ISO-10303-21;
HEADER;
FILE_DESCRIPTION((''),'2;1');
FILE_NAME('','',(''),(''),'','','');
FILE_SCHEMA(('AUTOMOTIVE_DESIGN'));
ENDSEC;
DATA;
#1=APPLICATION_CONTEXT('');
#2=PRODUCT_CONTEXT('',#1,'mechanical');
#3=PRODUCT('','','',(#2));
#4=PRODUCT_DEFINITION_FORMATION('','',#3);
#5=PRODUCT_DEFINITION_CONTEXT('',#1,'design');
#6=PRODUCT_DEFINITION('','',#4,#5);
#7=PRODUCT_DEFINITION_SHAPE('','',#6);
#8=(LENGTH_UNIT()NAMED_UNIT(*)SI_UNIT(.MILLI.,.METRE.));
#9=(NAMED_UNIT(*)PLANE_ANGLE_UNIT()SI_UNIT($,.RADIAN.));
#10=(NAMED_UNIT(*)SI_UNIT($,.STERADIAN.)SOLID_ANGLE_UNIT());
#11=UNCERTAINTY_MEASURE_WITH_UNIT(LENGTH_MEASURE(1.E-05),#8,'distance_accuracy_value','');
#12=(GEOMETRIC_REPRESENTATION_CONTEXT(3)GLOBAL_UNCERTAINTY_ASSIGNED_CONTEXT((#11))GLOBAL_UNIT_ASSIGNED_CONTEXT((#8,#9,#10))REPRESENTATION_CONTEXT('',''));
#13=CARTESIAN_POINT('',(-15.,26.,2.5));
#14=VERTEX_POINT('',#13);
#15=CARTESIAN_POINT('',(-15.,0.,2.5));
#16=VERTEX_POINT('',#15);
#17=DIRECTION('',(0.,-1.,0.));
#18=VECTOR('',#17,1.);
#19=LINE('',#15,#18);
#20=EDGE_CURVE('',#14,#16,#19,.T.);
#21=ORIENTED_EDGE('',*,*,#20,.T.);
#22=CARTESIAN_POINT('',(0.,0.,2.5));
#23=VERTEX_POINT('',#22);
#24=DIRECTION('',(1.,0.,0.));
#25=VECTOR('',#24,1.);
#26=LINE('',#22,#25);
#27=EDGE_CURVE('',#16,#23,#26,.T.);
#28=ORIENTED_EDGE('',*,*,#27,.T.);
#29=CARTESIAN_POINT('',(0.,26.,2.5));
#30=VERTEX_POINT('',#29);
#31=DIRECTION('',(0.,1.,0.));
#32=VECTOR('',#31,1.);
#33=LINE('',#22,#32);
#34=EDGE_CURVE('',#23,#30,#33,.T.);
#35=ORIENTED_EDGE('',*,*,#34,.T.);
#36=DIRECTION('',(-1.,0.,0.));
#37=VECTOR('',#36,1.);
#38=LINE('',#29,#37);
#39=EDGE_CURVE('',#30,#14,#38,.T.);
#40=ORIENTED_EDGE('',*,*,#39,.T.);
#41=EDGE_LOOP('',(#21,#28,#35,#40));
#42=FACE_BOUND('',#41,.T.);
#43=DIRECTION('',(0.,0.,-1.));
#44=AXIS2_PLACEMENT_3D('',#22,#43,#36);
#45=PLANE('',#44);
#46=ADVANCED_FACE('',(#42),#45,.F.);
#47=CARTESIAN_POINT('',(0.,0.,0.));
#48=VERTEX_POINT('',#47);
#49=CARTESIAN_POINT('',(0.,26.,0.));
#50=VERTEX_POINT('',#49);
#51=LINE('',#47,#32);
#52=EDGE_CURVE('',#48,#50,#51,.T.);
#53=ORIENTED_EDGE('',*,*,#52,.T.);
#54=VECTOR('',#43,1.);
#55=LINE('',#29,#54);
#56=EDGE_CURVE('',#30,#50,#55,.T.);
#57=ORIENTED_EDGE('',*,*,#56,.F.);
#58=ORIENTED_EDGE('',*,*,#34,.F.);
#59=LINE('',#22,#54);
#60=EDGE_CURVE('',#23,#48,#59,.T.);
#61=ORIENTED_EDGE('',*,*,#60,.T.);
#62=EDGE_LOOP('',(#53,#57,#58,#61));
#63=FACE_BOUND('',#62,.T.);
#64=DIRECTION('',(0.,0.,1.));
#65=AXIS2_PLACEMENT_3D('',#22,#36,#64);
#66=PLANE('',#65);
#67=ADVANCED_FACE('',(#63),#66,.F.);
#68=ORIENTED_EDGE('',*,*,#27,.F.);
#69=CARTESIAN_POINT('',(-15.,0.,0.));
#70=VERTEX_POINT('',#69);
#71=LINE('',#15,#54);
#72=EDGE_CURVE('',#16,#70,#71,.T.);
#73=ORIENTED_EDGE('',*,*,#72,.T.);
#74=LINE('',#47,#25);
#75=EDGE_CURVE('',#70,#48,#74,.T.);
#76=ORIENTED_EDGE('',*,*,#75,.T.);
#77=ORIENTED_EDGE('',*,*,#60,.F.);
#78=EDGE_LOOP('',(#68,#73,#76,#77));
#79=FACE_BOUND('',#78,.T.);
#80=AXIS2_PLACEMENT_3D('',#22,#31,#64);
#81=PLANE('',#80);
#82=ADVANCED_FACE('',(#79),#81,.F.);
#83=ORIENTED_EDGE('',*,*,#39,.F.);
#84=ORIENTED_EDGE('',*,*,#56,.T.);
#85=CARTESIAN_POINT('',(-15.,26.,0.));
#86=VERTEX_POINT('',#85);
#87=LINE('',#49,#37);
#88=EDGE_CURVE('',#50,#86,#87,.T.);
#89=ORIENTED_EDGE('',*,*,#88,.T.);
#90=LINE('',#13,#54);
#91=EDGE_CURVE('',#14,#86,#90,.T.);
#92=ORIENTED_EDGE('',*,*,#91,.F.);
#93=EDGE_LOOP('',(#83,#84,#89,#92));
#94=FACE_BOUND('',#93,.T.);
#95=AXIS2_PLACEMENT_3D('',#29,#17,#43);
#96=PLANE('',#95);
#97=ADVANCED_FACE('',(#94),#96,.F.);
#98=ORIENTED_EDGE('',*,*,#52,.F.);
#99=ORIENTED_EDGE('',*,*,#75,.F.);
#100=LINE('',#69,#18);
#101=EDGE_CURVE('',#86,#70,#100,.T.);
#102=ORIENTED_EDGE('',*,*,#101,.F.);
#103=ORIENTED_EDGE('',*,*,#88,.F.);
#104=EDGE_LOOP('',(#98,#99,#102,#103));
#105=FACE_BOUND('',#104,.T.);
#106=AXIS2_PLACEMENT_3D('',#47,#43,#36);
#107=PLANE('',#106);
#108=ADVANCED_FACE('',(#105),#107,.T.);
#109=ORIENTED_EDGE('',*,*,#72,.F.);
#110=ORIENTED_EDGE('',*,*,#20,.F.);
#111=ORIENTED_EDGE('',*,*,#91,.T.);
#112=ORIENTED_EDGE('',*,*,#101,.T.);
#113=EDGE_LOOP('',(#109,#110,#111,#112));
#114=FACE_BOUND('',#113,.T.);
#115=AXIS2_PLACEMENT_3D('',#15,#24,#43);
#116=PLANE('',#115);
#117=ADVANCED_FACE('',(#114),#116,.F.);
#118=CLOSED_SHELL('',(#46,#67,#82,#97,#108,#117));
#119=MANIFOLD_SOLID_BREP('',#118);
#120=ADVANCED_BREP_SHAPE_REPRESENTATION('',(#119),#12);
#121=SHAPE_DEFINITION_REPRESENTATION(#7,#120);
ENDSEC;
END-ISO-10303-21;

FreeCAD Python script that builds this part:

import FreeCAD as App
import Part
import Sketcher
from FreeCAD import Vector


def add_polygon(sketch, points):
    """Adds a closed chain of lines whose ends are joined by coincident constraints."""
    first, n = sketch.GeometryCount, len(points)
    for a, b in zip(points, points[1:] + points[:1]):
        sketch.addGeometry(Part.LineSegment(App.Vector(*a, 0), App.Vector(*b, 0)), False)
    for i in range(n):
        sketch.addConstraint(Sketcher.Constraint("Coincident", first + i, 2, first + (i + 1) % n, 1))

doc = App.newDocument("Part")
body = doc.addObject("PartDesign::Body", "Body")

sketch1 = body.newObject("Sketcher::SketchObject", "Sketch")
sketch1.AttachmentSupport = (doc.getObject("XY_Plane"), [""])
sketch1.MapMode = "FlatFace"
add_polygon(sketch1, [(-15, 0), (0, 0), (0, 26), (-15, 26)])
sketch1.addConstraint([
    Sketcher.Constraint("Horizontal", 0),
    Sketcher.Constraint("Vertical", 1),
    Sketcher.Constraint("Horizontal", 2),
    Sketcher.Constraint("Vertical", 3),
    Sketcher.Constraint("Coincident", 0, 2, -1, 1),
    Sketcher.Constraint("DistanceX", 0, 1, 0, 2, 15.0),
    Sketcher.Constraint("DistanceY", 1, 1, 1, 2, 26.0),
])
pad1 = body.newObject("PartDesign::Pad", "Pad")
pad1.Profile = sketch1
pad1.Length = 2.5

doc.recompute()
